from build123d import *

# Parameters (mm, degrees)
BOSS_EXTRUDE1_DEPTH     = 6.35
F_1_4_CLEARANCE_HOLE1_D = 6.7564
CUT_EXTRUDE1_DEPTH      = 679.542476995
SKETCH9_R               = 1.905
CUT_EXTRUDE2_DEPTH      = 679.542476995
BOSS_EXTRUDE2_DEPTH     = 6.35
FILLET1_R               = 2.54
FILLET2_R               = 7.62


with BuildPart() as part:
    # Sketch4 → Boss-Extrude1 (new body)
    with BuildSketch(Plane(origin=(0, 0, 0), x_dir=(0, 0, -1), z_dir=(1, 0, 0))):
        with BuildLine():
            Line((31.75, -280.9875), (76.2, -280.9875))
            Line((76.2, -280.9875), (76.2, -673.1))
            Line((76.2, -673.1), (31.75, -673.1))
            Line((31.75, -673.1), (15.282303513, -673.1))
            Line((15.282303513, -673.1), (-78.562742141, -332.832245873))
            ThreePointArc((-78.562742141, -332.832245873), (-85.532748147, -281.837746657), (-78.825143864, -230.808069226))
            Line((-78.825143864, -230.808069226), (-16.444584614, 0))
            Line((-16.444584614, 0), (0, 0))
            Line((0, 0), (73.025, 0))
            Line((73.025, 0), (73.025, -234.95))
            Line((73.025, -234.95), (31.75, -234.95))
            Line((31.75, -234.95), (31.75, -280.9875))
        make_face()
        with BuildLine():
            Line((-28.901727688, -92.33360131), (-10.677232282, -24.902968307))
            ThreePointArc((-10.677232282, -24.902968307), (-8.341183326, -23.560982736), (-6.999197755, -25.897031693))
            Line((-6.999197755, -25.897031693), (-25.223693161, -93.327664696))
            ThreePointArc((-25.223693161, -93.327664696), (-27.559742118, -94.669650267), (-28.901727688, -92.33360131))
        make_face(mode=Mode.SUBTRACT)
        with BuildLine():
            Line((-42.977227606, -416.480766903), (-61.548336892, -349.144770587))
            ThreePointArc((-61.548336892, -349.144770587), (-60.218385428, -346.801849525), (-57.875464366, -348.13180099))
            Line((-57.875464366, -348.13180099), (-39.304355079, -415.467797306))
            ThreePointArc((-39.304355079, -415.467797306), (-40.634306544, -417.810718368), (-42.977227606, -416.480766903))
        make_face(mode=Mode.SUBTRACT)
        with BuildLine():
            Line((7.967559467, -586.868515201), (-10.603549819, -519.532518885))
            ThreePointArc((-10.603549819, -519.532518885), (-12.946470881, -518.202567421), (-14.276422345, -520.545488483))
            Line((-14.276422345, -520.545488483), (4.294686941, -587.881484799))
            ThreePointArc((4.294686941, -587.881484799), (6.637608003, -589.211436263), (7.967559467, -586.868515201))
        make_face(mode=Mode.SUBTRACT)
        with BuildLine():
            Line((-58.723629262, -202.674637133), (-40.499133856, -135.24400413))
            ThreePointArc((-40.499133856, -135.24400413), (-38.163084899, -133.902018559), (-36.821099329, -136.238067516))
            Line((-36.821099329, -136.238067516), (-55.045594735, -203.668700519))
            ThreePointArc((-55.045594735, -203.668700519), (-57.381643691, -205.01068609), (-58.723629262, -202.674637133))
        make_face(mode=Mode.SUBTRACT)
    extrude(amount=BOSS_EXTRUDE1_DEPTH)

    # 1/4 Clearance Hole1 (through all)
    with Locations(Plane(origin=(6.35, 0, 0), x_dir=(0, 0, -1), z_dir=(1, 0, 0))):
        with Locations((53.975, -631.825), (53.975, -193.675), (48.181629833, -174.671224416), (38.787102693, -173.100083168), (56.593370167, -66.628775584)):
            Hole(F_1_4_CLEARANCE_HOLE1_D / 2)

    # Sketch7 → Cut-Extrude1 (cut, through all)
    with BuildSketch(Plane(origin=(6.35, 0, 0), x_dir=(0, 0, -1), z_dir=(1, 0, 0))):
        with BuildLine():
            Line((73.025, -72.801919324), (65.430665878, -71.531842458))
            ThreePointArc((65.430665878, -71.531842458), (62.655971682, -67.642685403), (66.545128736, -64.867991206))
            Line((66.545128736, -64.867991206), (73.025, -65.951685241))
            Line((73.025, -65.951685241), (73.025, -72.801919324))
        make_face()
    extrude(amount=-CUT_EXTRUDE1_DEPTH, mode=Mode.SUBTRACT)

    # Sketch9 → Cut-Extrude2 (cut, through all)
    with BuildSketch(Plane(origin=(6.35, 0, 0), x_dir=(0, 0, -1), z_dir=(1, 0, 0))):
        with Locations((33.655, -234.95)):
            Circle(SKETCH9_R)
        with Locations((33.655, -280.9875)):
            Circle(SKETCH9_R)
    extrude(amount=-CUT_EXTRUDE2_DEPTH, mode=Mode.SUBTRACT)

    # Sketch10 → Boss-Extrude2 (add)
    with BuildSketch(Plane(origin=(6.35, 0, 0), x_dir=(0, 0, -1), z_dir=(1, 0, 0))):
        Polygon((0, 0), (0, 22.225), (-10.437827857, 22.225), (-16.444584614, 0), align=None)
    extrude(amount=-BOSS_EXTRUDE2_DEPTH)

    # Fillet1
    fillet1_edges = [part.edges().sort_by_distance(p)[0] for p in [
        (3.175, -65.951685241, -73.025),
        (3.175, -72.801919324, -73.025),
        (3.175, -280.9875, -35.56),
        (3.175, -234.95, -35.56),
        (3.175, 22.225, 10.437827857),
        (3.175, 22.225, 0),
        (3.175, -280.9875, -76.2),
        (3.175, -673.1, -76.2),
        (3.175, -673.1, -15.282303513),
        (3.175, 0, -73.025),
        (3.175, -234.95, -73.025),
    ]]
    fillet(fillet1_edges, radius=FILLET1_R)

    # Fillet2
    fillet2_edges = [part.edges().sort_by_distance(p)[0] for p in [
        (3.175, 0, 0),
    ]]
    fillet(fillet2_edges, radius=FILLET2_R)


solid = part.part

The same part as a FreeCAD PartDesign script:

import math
import FreeCAD as App
import Part
import Sketcher
from FreeCAD import Vector
Q = App.Units.Quantity


def edges_at(feature, points):
    """Names of the edges that pass closest to the given points."""
    edges = feature.Shape.Edges
    near = lambda p: min(range(len(edges)), key=lambda i: edges[i].distToShape(Part.Vertex(*p))[0])
    return sorted({f"Edge{near(p) + 1}" for p in points})


def add_polygon(sketch, points):
    """Adds a closed chain of lines whose ends are joined by coincident constraints."""
    first, n = sketch.GeometryCount, len(points)
    for a, b in zip(points, points[1:] + points[:1]):
        sketch.addGeometry(Part.LineSegment(App.Vector(*a, 0), App.Vector(*b, 0)), False)
    for i in range(n):
        sketch.addConstraint(Sketcher.Constraint("Coincident", first + i, 2, first + (i + 1) % n, 1))

doc = App.newDocument("Part")
params = doc.addObject("Spreadsheet::Sheet", "Params")
for row, (alias, value) in enumerate([
    ("sketch1_radius", "7.625 in"),
    ("sketch1_radius2", "0.075 in"),
    ("sketch1_width", "9.25 in"),
    ("sketch1_height", "1.75 in"),
    ("sketch1_length", "2.75 in"),
    ("pad1_length", "0.25 in"),
    ("sketch2_diameter", "0.266 in"),
    ("hole_diameter", "0.266 in"),
    ("sketch3_radius", "0.133 in"),
    ("sketch4_diameter", "0.15 in"),
    ("sketch5_width", "0.875 in"),
    ("pad2_length", "0.25 in"),
    ("fillet_radius", "0.1 in"),
    ("fillet2_radius", "0.3 in"),
], start=1):
    params.set(f"A{row}", alias)
    params.set(f"B{row}", "=" + value)
    params.setAlias(f"B{row}", alias)

body = doc.addObject("PartDesign::Body", "Body")

# Sketch on YZ plane
sketch1 = doc.addObject("Sketcher::SketchObject", "Sketch")
body.addObject(sketch1)
sketch1.AttachmentSupport = (doc.YZ_Plane, [""])
sketch1.MapMode = "FlatFace"
sketch1.addGeometry(Part.LineSegment(Vector(-280.9875, -76.2, 0), Vector(-280.9875, -31.75, 0)), False)
sketch1.addGeometry(Part.LineSegment(Vector(-280.9875, -31.75, 0), Vector(-234.95, -31.75, 0)), False)
sketch1.addGeometry(Part.LineSegment(Vector(-234.95, -31.75, 0), Vector(-234.95, -73.025, 0)), False)
sketch1.addGeometry(Part.LineSegment(Vector(-234.95, -73.025, 0), Vector(0, -73.025, 0)), False)
sketch1.addGeometry(Part.LineSegment(Vector(0, -73.025, 0), Vector(0, 16.444585, 0)), False)
sketch1.addGeometry(Part.LineSegment(Vector(0, 16.444585, 0), Vector(-230.808069, 78.825144, 0)), False)
sketch1.addGeometry(Part.ArcOfCircle(Part.Circle(Vector(-281.339625, -108.141611, 0), Vector(0, 0, 1), 193.675), math.radians(74.875993), math.radians(105.418731)), False)
sketch1.addGeometry(Part.LineSegment(Vector(-332.832246, 78.562742, 0), Vector(-673.1, -15.282304, 0)), False)
sketch1.addGeometry(Part.LineSegment(Vector(-673.1, -15.282304, 0), Vector(-673.1, -76.2, 0)), False)
sketch1.addGeometry(Part.LineSegment(Vector(-673.1, -76.2, 0), Vector(-280.9875, -76.2, 0)), False)
sketch1.addGeometry(Part.ArcOfCircle(Part.Circle(Vector(-587.375, -6.131123, 0), Vector(0, 0, 1), 1.905), math.radians(105.418731), math.radians(285.418731)), False)
sketch1.addGeometry(Part.LineSegment(Vector(-587.881485, -4.294687, 0), Vector(-520.545488, 14.276422, 0)), False)
sketch1.addGeometry(Part.ArcOfCircle(Part.Circle(Vector(-520.039004, 12.439986, 0), Vector(0, 0, 1), 1.905), math.radians(-74.581269), math.radians(105.418731)), False)
sketch1.addGeometry(Part.LineSegment(Vector(-519.532519, 10.60355, 0), Vector(-586.868515, -7.967559, 0)), False)
sketch1.addGeometry(Part.LineSegment(Vector(-416.480767, 42.977228, 0), Vector(-349.144771, 61.548337, 0)), False)
sketch1.addGeometry(Part.ArcOfCircle(Part.Circle(Vector(-348.638286, 59.711901, 0), Vector(0, 0, 1), 1.905), math.radians(-74.581269), math.radians(105.418731)), False)
sketch1.addGeometry(Part.LineSegment(Vector(-348.131801, 57.875464, 0), Vector(-415.467797, 39.304355, 0)), False)
sketch1.addGeometry(Part.ArcOfCircle(Part.Circle(Vector(-415.974282, 41.140791, 0), Vector(0, 0, 1), 1.905), math.radians(105.418731), math.radians(285.418731)), False)
sketch1.addGeometry(Part.LineSegment(Vector(-92.333601, 28.901728, 0), Vector(-24.902968, 10.677232, 0)), False)
sketch1.addGeometry(Part.ArcOfCircle(Part.Circle(Vector(-25.4, 8.838215, 0), Vector(0, 0, 1), 1.905), math.radians(-105.124007), math.radians(74.875993)), False)
sketch1.addGeometry(Part.LineSegment(Vector(-25.897032, 6.999198, 0), Vector(-93.327665, 25.223693, 0)), False)
sketch1.addGeometry(Part.ArcOfCircle(Part.Circle(Vector(-92.830633, 27.06271, 0), Vector(0, 0, 1), 1.905), math.radians(74.875993), math.radians(254.875993)), False)
sketch1.addGeometry(Part.LineSegment(Vector(-202.674637, 58.723629, 0), Vector(-135.244004, 40.499134, 0)), False)
sketch1.addGeometry(Part.ArcOfCircle(Part.Circle(Vector(-135.741036, 38.660117, 0), Vector(0, 0, 1), 1.905), math.radians(-105.124007), math.radians(74.875993)), False)
sketch1.addGeometry(Part.LineSegment(Vector(-136.238068, 36.821099, 0), Vector(-203.668701, 55.045595, 0)), False)
sketch1.addGeometry(Part.ArcOfCircle(Part.Circle(Vector(-203.171669, 56.884612, 0), Vector(0, 0, 1), 1.905), math.radians(74.875993), math.radians(254.875993)), False)
sketch1.addConstraint(Sketcher.Constraint("Coincident", 0, 2, 1, 1))
sketch1.addConstraint(Sketcher.Constraint("Coincident", 1, 2, 2, 1))
sketch1.addConstraint(Sketcher.Constraint("Coincident", 2, 2, 3, 1))
sketch1.addConstraint(Sketcher.Constraint("Coincident", 3, 2, 4, 1))
sketch1.addConstraint(Sketcher.Constraint("Coincident", 4, 2, 5, 1))
sketch1.addConstraint(Sketcher.Constraint("Tangent", 5, 2, 6, 1))
sketch1.addConstraint(Sketcher.Constraint("Tangent", 6, 2, 7, 1))
sketch1.addConstraint(Sketcher.Constraint("Coincident", 7, 2, 8, 1))
sketch1.addConstraint(Sketcher.Constraint("Coincident", 8, 2, 9, 1))
sketch1.addConstraint(Sketcher.Constraint("Coincident", 9, 2, 0, 1))
sketch1.addConstraint(Sketcher.Constraint("Tangent", 10, 1, 11, 1))
sketch1.addConstraint(Sketcher.Constraint("Tangent", 11, 2, 12, 2))
sketch1.addConstraint(Sketcher.Constraint("Tangent", 12, 1, 13, 1))
sketch1.addConstraint(Sketcher.Constraint("Tangent", 13, 2, 10, 2))
sketch1.addConstraint(Sketcher.Constraint("Tangent", 14, 2, 15, 2))
sketch1.addConstraint(Sketcher.Constraint("Tangent", 15, 1, 16, 1))
sketch1.addConstraint(Sketcher.Constraint("Tangent", 16, 2, 17, 2))
sketch1.addConstraint(Sketcher.Constraint("Tangent", 17, 1, 14, 1))
sketch1.addConstraint(Sketcher.Constraint("Tangent", 18, 2, 19, 2))
sketch1.addConstraint(Sketcher.Constraint("Tangent", 19, 1, 20, 1))
sketch1.addConstraint(Sketcher.Constraint("Tangent", 20, 2, 21, 2))
sketch1.addConstraint(Sketcher.Constraint("Tangent", 21, 1, 18, 1))
sketch1.addConstraint(Sketcher.Constraint("Tangent", 22, 2, 23, 2))
sketch1.addConstraint(Sketcher.Constraint("Tangent", 23, 1, 24, 1))
sketch1.addConstraint(Sketcher.Constraint("Tangent", 24, 2, 25, 2))
sketch1.addConstraint(Sketcher.Constraint("Tangent", 25, 1, 22, 1))
sketch1.addConstraint(Sketcher.Constraint("Vertical", 0))
sketch1.addConstraint(Sketcher.Constraint("Horizontal", 1))
sketch1.addConstraint(Sketcher.Constraint("Vertical", 2))
sketch1.addConstraint(Sketcher.Constraint("Horizontal", 3))
sketch1.addConstraint(Sketcher.Constraint("Vertical", 4))
sketch1.addConstraint(Sketcher.Constraint("Vertical", 8))
sketch1.addConstraint(Sketcher.Constraint("Horizontal", 9))
sketch1.addConstraint(Sketcher.Constraint("Equal", 10, 12))
sketch1.addConstraint(Sketcher.Constraint("Equal", 12, 15))
sketch1.addConstraint(Sketcher.Constraint("Equal", 15, 17))
sketch1.addConstraint(Sketcher.Constraint("Equal", 17, 19))
sketch1.addConstraint(Sketcher.Constraint("Equal", 19, 21))
sketch1.addConstraint(Sketcher.Constraint("Equal", 21, 23))
sketch1.addConstraint(Sketcher.Constraint("Equal", 23, 25))
sketch1.addConstraint(Sketcher.Constraint("PointOnObject", 3, 2, -2))
sketch1.addConstraint(Sketcher.Constraint("Parallel", 7, 11))
sketch1.addConstraint(Sketcher.Constraint("Parallel", 13, 14))
sketch1.addConstraint(Sketcher.Constraint("Parallel", 5, 18))
sketch1.addConstraint(Sketcher.Constraint("Parallel", 20, 22))
sketch1.addConstraint(Sketcher.Constraint("Equal", 13, 14))
sketch1.addConstraint(Sketcher.Constraint("Equal", 16, 18))
sketch1.addConstraint(Sketcher.Constraint("Equal", 20, 22))
sketch1.addConstraint(Sketcher.Constraint("DistanceX", 19, 3, -1, 1, Q("1 in")))
sketch1.addConstraint(Sketcher.Constraint("DistanceY", 8, 2, -1, 1, Q("3 in")))
sketch1.addConstraint(Sketcher.Constraint("Radius", 6, Q("7.625 in")))
sketch1.addConstraint(Sketcher.Constraint("Radius", 10, Q("0.075 in")))
sketch1.addConstraint(Sketcher.Constraint("DistanceX", 3, 1, 3, 2, Q("9.25 in")))
sketch1.addConstraint(Sketcher.Constraint("DistanceY", 0, 1, 0, 2, Q("1.75 in")))
sketch1.addConstraint(Sketcher.Constraint("DistanceX", 7, 2, -1, 1, Q("26.5 in")))
sketch1.addConstraint(Sketcher.Constraint("Distance", 11, Q("2.75 in")))
sketch1.addConstraint(Sketcher.Constraint("DistanceX", 1, 1, 1, 2, Q("1.8125 in")))
sketch1.addConstraint(Sketcher.Constraint("DistanceY", 2, 2, 2, 1, Q("1.625 in")))
sketch1.addConstraint(Sketcher.Constraint("DistanceX", 10, 3, -1, 1, Q("23.125 in")))
sketch1.addConstraint(Sketcher.Constraint("DistanceX", 16, 2, -1, 1, Q("16.3569999 in")))
sketch1.addConstraint(Sketcher.Constraint("DistanceY", 19, 3, 21, 3, Q("0.7174998 in")))
sketch1.addConstraint(Sketcher.Constraint("DistanceX", 6, 2, 5, 2, Q("4.0166999 in")))
sketch1.addConstraint(Sketcher.Constraint("DistanceY", -1, 1, 15, 3, Q("59.711901 mm")))
sketch1.addConstraint(Sketcher.Constraint("DistanceY", -1, 1, 23, 1, Q("36.821099 mm")))
sketch1.addConstraint(Sketcher.Constraint("DistanceX", 24, 2, -1, 1, Q("203.668701 mm")))
sketch1.addConstraint(Sketcher.Constraint("DistanceY", 19, 3, 23, 3, Q("29.821902 mm")))
sketch1.addConstraint(Sketcher.Constraint("DistanceX", 5, 2, 25, 3, Q("27.6364 mm")))
sketch1.addConstraint(Sketcher.Constraint("DistanceY", 4, 1, 4, 2, Q("89.469585 mm")))
sketch1.addConstraint(Sketcher.Constraint("DistanceY", -1, 1, 12, 1, Q("10.60355 mm")))
sketch1.setExpression("Constraints[50]", "Params.sketch1_radius")
sketch1.setExpression("Constraints[51]", "Params.sketch1_radius2")
sketch1.setExpression("Constraints[52]", "Params.sketch1_width")
sketch1.setExpression("Constraints[53]", "Params.sketch1_height")
sketch1.setExpression("Constraints[55]", "Params.sketch1_length")
pad1 = doc.addObject("PartDesign::Pad", "Pad")
body.addObject(pad1)
pad1.Profile = sketch1
pad1.setExpression("Length", "Params.pad1_length")

# Sketch on YZ plane
sketch2 = doc.addObject("Sketcher::SketchObject", "Sketch001")
body.addObject(sketch2)
sketch2.AttachmentSupport = (doc.YZ_Plane, [""])
sketch2.MapMode = "FlatFace"
sketch2.AttachmentOffset = App.Placement(Vector(0, 0, 0.25 * 25.4), App.Rotation())
sketch2.addGeometry(Part.Circle(Vector(-631.825, -53.975, 0), Vector(0, 0, 1), 3.3782), False)
sketch2.addGeometry(Part.Circle(Vector(-193.675, -53.975, 0), Vector(0, 0, 1), 3.3782), False)
sketch2.addGeometry(Part.Circle(Vector(-174.671224, -48.18163, 0), Vector(0, 0, 1), 3.3782), False)
sketch2.addGeometry(Part.Circle(Vector(-173.100083, -38.787103, 0), Vector(0, 0, 1), 3.3782), False)
sketch2.addGeometry(Part.Circle(Vector(-66.628776, -56.59337, 0), Vector(0, 0, 1), 3.3782), False)
sketch2.addConstraint(Sketcher.Constraint("Equal", 0, 1))
sketch2.addConstraint(Sketcher.Constraint("Equal", 1, 2))
sketch2.addConstraint(Sketcher.Constraint("Equal", 2, 3))
sketch2.addConstraint(Sketcher.Constraint("Equal", 3, 4))
sketch2.addConstraint(Sketcher.Constraint("Horizontal", 0, 3, 1, 3))
sketch2.addConstraint(Sketcher.Constraint("Diameter", 0, Q("0.266 in")))
sketch2.addConstraint(Sketcher.Constraint("DistanceX", 0, 3, 1, 3, Q("17.25 in")))
sketch2.addConstraint(Sketcher.Constraint("DistanceX", 0, 3, -1, 1, Q("24.875 in")))
sketch2.addConstraint(Sketcher.Constraint("DistanceY", 0, 3, -1, 1, Q("2.125 in")))
sketch2.addConstraint(Sketcher.Constraint("DistanceY", 2, 3, -1, 1, Q("48.18163 mm")))
sketch2.addConstraint(Sketcher.Constraint("DistanceY", 4, 3, -1, 1, Q("56.59337 mm")))
sketch2.addConstraint(Sketcher.Constraint("DistanceX", 2, 3, 3, 3, Q("1.571141 mm")))
sketch2.addConstraint(Sketcher.Constraint("DistanceX", 2, 3, 4, 3, Q("108.042449 mm")))
sketch2.addConstraint(Sketcher.Constraint("DistanceX", 2, 3, -1, 1, Q("174.671224 mm")))
sketch2.addConstraint(Sketcher.Constraint("DistanceY", 3, 3, -1, 1, Q("38.787103 mm")))
sketch2.setExpression("Constraints[5]", "Params.sketch2_diameter")
doc.recompute()
hole = doc.addObject("PartDesign::Hole", "Hole")
body.addObject(hole)
hole.Profile = sketch2
hole.ThreadType = "None"
hole.setExpression("Diameter", "Params.hole_diameter")
hole.DepthType = "ThroughAll"

# Sketch on YZ plane
sketch3 = doc.addObject("Sketcher::SketchObject", "Sketch002")
body.addObject(sketch3)
sketch3.AttachmentSupport = (doc.YZ_Plane, [""])
sketch3.MapMode = "FlatFace"
sketch3.AttachmentOffset = App.Placement(Vector(0, 0, 0.25 * 25.4), App.Rotation())
sketch3.addGeometry(Part.LineSegment(Vector(-71.531842, -65.430666, 0), Vector(-72.801919, -73.025, 0)), False)
sketch3.addGeometry(Part.LineSegment(Vector(-72.801919, -73.025, 0), Vector(-65.951685, -73.025, 0)), False)
sketch3.addGeometry(Part.LineSegment(Vector(-65.951685, -73.025, 0), Vector(-64.867991, -66.545129, 0)), False)
sketch3.addGeometry(Part.ArcOfCircle(Part.Circle(Vector(-68.199917, -65.987897, 0), Vector(0, 0, 1), 3.3782), math.radians(-9.494284), math.radians(170.505716)), False)
sketch3.addConstraint(Sketcher.Constraint("Coincident", 0, 2, 1, 1))
sketch3.addConstraint(Sketcher.Constraint("Coincident", 1, 2, 2, 1))
sketch3.addConstraint(Sketcher.Constraint("Tangent", 2, 2, 3, 1))
sketch3.addConstraint(Sketcher.Constraint("Tangent", 3, 2, 0, 1))
sketch3.addConstraint(Sketcher.Constraint("Horizontal", 1))
sketch3.addConstraint(Sketcher.Constraint("Parallel", 0, 2))
sketch3.addConstraint(Sketcher.Constraint("Radius", 3, Q("0.133 in")))
sketch3.addConstraint(Sketcher.Constraint("DistanceY", 0, 2, -1, 1, Q("2.875 in")))
sketch3.addConstraint(Sketcher.Constraint("DistanceX", 1, 1, 1, 2, Q("6.850234 mm")))
sketch3.addConstraint(Sketcher.Constraint("DistanceX", 0, 2, -1, 1, Q("72.801919 mm")))
sketch3.addConstraint(Sketcher.Constraint("DistanceX", 2, 2, -1, 1, Q("64.867991 mm")))
sketch3.setExpression("Constraints[6]", "Params.sketch3_radius")
pocket1 = doc.addObject("PartDesign::Pocket", "Pocket")
body.addObject(pocket1)
pocket1.Profile = sketch3
pocket1.Type = "ThroughAll"

# Sketch on YZ plane
sketch4 = doc.addObject("Sketcher::SketchObject", "Sketch003")
body.addObject(sketch4)
sketch4.AttachmentSupport = (doc.YZ_Plane, [""])
sketch4.MapMode = "FlatFace"
sketch4.AttachmentOffset = App.Placement(Vector(0, 0, 0.25 * 25.4), App.Rotation())
sketch4.addGeometry(Part.Circle(Vector(-234.95, -33.655, 0), Vector(0, 0, 1), 1.905), False)
sketch4.addGeometry(Part.Circle(Vector(-280.9875, -33.655, 0), Vector(0, 0, 1), 1.905), False)
sketch4.addConstraint(Sketcher.Constraint("Equal", 0, 1))
sketch4.addConstraint(Sketcher.Constraint("Horizontal", 0, 3, 1, 3))
sketch4.addConstraint(Sketcher.Constraint("Diameter", 0, Q("0.15 in")))
sketch4.addConstraint(Sketcher.Constraint("DistanceX", 0, 3, -1, 1, Q("9.25 in")))
sketch4.addConstraint(Sketcher.Constraint("DistanceY", 0, 3, -1, 1, Q("1.325 in")))
sketch4.addConstraint(Sketcher.Constraint("DistanceX", 1, 3, -1, 1, Q("11.0625 in")))
sketch4.setExpression("Constraints[2]", "Params.sketch4_diameter")
pocket2 = doc.addObject("PartDesign::Pocket", "Pocket001")
body.addObject(pocket2)
pocket2.Profile = sketch4
pocket2.Type = "ThroughAll"

# Sketch on YZ plane
sketch5 = doc.addObject("Sketcher::SketchObject", "Sketch004")
body.addObject(sketch5)
sketch5.AttachmentSupport = (doc.YZ_Plane, [""])
sketch5.MapMode = "FlatFace"
sketch5.AttachmentOffset = App.Placement(Vector(0, 0, 0.25 * 25.4), App.Rotation())
add_polygon(sketch5, [(0, 0), (22.225, 0), (22.225, 10.437828), (0, 16.444585)])  # lines 0-3
sketch5.addConstraint(Sketcher.Constraint("Horizontal", 0))
sketch5.addConstraint(Sketcher.Constraint("Vertical", 1))
sketch5.addConstraint(Sketcher.Constraint("Vertical", 3))
sketch5.addConstraint(Sketcher.Constraint("Coincident", 3, 2, -1, 1))
sketch5.addConstraint(Sketcher.Constraint("DistanceX", 0, 1, 0, 2, Q("0.875 in")))
sketch5.addConstraint(Sketcher.Constraint("Distance", 2, Q("23.022418 mm")))
sketch5.addConstraint(Sketcher.Constraint("DistanceY", 1, 1, 1, 2, Q("10.437828 mm")))
sketch5.setExpression("Constraints[8]", "Params.sketch5_width")
pad2 = doc.addObject("PartDesign::Pad", "Pad001")
body.addObject(pad2)
pad2.Profile = sketch5
pad2.setExpression("Length", "Params.pad2_length")
pad2.Reversed = True
doc.recompute()

fillet = doc.addObject("PartDesign::Fillet", "Fillet")
body.addObject(fillet)
fillet.Base = (pad2, edges_at(pad2, [
    (3.175, -65.952, -73.025),
    (3.175, -72.802, -73.025),
    (3.175, -280.988, -35.56),
    (3.175, -234.95, -35.56),
    (3.175, 22.225, 10.438),
    (3.175, 22.225, 0),
    (3.175, -280.988, -76.2),
    (3.175, -673.1, -76.2),
    (3.175, -673.1, -15.282),
    (3.175, 0, -73.025),
    (3.175, -234.95, -73.025),
]))
fillet.setExpression("Radius", "Params.fillet_radius")
doc.recompute()

fillet2 = doc.addObject("PartDesign::Fillet", "Fillet001")
body.addObject(fillet2)
fillet2.Base = (fillet, edges_at(fillet, [(3.175, 0, 0)]))
fillet2.setExpression("Radius", "Params.fillet2_radius")

doc.recompute()
